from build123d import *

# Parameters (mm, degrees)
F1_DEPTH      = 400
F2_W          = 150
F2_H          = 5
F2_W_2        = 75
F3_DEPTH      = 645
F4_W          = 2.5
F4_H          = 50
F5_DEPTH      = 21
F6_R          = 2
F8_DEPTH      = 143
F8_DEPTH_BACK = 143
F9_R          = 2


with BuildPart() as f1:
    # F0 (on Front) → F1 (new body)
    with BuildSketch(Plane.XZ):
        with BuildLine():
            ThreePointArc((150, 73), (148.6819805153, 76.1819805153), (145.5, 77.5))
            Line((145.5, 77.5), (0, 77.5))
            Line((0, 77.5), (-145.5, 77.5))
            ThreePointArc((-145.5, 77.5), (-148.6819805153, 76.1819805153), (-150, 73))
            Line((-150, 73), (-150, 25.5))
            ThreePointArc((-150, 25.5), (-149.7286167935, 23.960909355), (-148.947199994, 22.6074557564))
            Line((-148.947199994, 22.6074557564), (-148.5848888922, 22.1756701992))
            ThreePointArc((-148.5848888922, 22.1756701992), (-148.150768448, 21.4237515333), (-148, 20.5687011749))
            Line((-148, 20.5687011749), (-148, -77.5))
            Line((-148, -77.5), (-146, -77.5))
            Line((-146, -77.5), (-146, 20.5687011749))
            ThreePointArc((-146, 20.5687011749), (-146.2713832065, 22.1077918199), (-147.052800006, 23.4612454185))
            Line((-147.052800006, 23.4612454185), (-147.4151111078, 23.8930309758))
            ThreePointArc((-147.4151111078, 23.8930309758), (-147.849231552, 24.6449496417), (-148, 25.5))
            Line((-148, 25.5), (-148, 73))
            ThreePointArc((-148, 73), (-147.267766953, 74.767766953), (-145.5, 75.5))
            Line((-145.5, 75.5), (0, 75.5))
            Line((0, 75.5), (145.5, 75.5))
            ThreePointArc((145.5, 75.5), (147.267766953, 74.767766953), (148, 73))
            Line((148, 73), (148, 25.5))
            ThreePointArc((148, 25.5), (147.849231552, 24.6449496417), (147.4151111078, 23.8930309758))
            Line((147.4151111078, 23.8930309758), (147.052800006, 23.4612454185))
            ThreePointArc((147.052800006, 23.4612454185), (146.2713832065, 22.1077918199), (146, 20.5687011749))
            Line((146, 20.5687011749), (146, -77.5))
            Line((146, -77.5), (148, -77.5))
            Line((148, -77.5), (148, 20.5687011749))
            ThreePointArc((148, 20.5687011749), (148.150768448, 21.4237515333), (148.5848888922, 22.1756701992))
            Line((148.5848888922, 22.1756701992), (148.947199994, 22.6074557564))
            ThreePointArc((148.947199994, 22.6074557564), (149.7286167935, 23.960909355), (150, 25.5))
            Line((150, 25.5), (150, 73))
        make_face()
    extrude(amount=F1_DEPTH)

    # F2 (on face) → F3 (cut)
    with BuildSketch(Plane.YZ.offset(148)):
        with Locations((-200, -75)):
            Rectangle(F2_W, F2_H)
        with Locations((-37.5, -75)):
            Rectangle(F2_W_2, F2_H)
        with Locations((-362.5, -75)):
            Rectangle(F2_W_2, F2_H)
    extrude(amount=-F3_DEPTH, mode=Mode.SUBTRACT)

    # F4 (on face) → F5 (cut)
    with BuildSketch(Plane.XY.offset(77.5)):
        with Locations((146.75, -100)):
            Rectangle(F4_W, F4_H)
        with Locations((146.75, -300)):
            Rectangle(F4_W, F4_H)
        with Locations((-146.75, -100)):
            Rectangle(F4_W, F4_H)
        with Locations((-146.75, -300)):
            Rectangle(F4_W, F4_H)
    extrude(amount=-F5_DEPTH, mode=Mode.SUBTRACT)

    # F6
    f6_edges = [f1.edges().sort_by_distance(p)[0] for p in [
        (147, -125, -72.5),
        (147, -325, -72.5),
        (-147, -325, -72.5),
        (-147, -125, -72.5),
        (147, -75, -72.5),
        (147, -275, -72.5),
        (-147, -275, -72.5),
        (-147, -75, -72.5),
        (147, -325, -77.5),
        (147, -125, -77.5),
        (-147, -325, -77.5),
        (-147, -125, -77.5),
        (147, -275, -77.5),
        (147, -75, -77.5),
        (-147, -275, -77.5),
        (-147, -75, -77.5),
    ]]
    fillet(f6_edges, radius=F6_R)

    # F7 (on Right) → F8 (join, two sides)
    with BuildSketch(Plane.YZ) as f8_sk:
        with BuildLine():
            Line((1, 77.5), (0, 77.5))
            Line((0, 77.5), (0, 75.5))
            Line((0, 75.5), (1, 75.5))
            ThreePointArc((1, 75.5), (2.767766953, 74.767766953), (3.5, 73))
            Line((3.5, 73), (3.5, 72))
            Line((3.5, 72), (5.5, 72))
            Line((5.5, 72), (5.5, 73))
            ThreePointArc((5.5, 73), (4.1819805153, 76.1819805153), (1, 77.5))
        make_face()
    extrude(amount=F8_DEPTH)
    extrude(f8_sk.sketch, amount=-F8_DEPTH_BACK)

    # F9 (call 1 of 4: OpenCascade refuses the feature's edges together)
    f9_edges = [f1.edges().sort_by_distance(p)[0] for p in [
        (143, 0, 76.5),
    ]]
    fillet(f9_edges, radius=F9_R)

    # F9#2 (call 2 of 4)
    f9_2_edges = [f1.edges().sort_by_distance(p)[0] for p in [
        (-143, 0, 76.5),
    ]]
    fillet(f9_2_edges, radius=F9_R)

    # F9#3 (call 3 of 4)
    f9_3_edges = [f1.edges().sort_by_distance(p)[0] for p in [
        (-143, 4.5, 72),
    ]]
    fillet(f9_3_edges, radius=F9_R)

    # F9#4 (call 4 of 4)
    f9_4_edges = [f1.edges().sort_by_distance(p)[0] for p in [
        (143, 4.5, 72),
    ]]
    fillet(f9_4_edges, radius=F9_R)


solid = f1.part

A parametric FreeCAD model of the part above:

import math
import FreeCAD as App
import Part
import Sketcher
from FreeCAD import Vector
Q = App.Units.Quantity


def edges_at(feature, points):
    """Names of the edges that pass closest to the given points."""
    edges = feature.Shape.Edges
    near = lambda p: min(range(len(edges)), key=lambda i: edges[i].distToShape(Part.Vertex(*p))[0])
    return sorted({f"Edge{near(p) + 1}" for p in points})

doc = App.newDocument("Part")
body = doc.addObject("PartDesign::Body", "Body")

# Sketch on XZ plane
sketch1 = body.newObject("Sketcher::SketchObject", "Sketch")
sketch1.AttachmentSupport = (doc.getObject("XZ_Plane"), [""])
sketch1.MapMode = "FlatFace"
sketch1.addGeometry(Part.ArcOfCircle(Part.Circle(Vector(145.5, 73, 0), Vector(0, 0, 1), 4.5), math.radians(0), math.radians(90)), False)
sketch1.addGeometry(Part.LineSegment(Vector(145.5, 77.5, 0), Vector(-145.5, 77.5, 0)), False)
sketch1.addGeometry(Part.ArcOfCircle(Part.Circle(Vector(-145.5, 73, 0), Vector(0, 0, 1), 4.5), math.radians(90), math.radians(180)), False)
sketch1.addGeometry(Part.LineSegment(Vector(-150, 73, 0), Vector(-150, 25.5, 0)), False)
sketch1.addGeometry(Part.ArcOfCircle(Part.Circle(Vector(-145.5, 25.5, 0), Vector(0, 0, 1), 4.5), math.radians(180), math.radians(220)), False)
sketch1.addGeometry(Part.LineSegment(Vector(-148.9, 22.6, 0), Vector(-148.6, 22.2, 0)), False)
sketch1.addGeometry(Part.ArcOfCircle(Part.Circle(Vector(-150.5, 20.6, 0), Vector(0, 0, 1), 2.5), math.radians(0), math.radians(40)), False)
sketch1.addGeometry(Part.LineSegment(Vector(-148, 20.6, 0), Vector(-148, -77.5, 0)), False)
sketch1.addGeometry(Part.LineSegment(Vector(-148, -77.5, 0), Vector(-146, -77.5, 0)), False)
sketch1.addGeometry(Part.LineSegment(Vector(-146, -77.5, 0), Vector(-146, 20.6, 0)), False)
sketch1.addGeometry(Part.ArcOfCircle(Part.Circle(Vector(-150.5, 20.6, 0), Vector(0, 0, 1), 4.5), math.radians(0), math.radians(40)), False)
sketch1.addGeometry(Part.LineSegment(Vector(-147.1, 23.5, 0), Vector(-147.4, 23.9, 0)), False)
sketch1.addGeometry(Part.ArcOfCircle(Part.Circle(Vector(-145.5, 25.5, 0), Vector(0, 0, 1), 2.5), math.radians(180), math.radians(220)), False)
sketch1.addGeometry(Part.LineSegment(Vector(-148, 25.5, 0), Vector(-148, 73, 0)), False)
sketch1.addGeometry(Part.ArcOfCircle(Part.Circle(Vector(-145.5, 73, 0), Vector(0, 0, 1), 2.5), math.radians(90), math.radians(180)), False)
sketch1.addGeometry(Part.LineSegment(Vector(-145.5, 75.5, 0), Vector(145.5, 75.5, 0)), False)
sketch1.addGeometry(Part.ArcOfCircle(Part.Circle(Vector(145.5, 73, 0), Vector(0, 0, 1), 2.5), math.radians(0), math.radians(90)), False)
sketch1.addGeometry(Part.LineSegment(Vector(148, 73, 0), Vector(148, 25.5, 0)), False)
sketch1.addGeometry(Part.ArcOfCircle(Part.Circle(Vector(145.5, 25.5, 0), Vector(0, 0, 1), 2.5), math.radians(-40), math.radians(0)), False)
sketch1.addGeometry(Part.LineSegment(Vector(147.4, 23.9, 0), Vector(147.1, 23.5, 0)), False)
sketch1.addGeometry(Part.ArcOfCircle(Part.Circle(Vector(150.5, 20.6, 0), Vector(0, 0, 1), 4.5), math.radians(140), math.radians(180)), False)
sketch1.addGeometry(Part.LineSegment(Vector(146, 20.6, 0), Vector(146, -77.5, 0)), False)
sketch1.addGeometry(Part.LineSegment(Vector(146, -77.5, 0), Vector(148, -77.5, 0)), False)
sketch1.addGeometry(Part.LineSegment(Vector(148, -77.5, 0), Vector(148, 20.6, 0)), False)
sketch1.addGeometry(Part.ArcOfCircle(Part.Circle(Vector(150.5, 20.6, 0), Vector(0, 0, 1), 2.5), math.radians(140), math.radians(180)), False)
sketch1.addGeometry(Part.LineSegment(Vector(148.6, 22.2, 0), Vector(148.9, 22.6, 0)), False)
sketch1.addGeometry(Part.ArcOfCircle(Part.Circle(Vector(145.5, 25.5, 0), Vector(0, 0, 1), 4.5), math.radians(-40), math.radians(0)), False)
sketch1.addGeometry(Part.LineSegment(Vector(150, 25.5, 0), Vector(150, 73, 0)), False)
sketch1.addConstraint(Sketcher.Constraint("Tangent", 0, 2, 1, 1))
sketch1.addConstraint(Sketcher.Constraint("Tangent", 1, 2, 2, 1))
sketch1.addConstraint(Sketcher.Constraint("Tangent", 2, 2, 3, 1))
sketch1.addConstraint(Sketcher.Constraint("Tangent", 3, 2, 4, 1))
sketch1.addConstraint(Sketcher.Constraint("Tangent", 4, 2, 5, 1))
sketch1.addConstraint(Sketcher.Constraint("Tangent", 5, 2, 6, 2))
sketch1.addConstraint(Sketcher.Constraint("Tangent", 6, 1, 7, 1))
sketch1.addConstraint(Sketcher.Constraint("Coincident", 7, 2, 8, 1))
sketch1.addConstraint(Sketcher.Constraint("Coincident", 8, 2, 9, 1))
sketch1.addConstraint(Sketcher.Constraint("Tangent", 9, 2, 10, 1))
sketch1.addConstraint(Sketcher.Constraint("Tangent", 10, 2, 11, 1))
sketch1.addConstraint(Sketcher.Constraint("Tangent", 11, 2, 12, 2))
sketch1.addConstraint(Sketcher.Constraint("Tangent", 12, 1, 13, 1))
sketch1.addConstraint(Sketcher.Constraint("Tangent", 13, 2, 14, 2))
sketch1.addConstraint(Sketcher.Constraint("Tangent", 14, 1, 15, 1))
sketch1.addConstraint(Sketcher.Constraint("Tangent", 15, 2, 16, 2))
sketch1.addConstraint(Sketcher.Constraint("Tangent", 16, 1, 17, 1))
sketch1.addConstraint(Sketcher.Constraint("Tangent", 17, 2, 18, 2))
sketch1.addConstraint(Sketcher.Constraint("Tangent", 18, 1, 19, 1))
sketch1.addConstraint(Sketcher.Constraint("Tangent", 19, 2, 20, 1))
sketch1.addConstraint(Sketcher.Constraint("Tangent", 20, 2, 21, 1))
sketch1.addConstraint(Sketcher.Constraint("Coincident", 21, 2, 22, 1))
sketch1.addConstraint(Sketcher.Constraint("Coincident", 22, 2, 23, 1))
sketch1.addConstraint(Sketcher.Constraint("Tangent", 23, 2, 24, 2))
sketch1.addConstraint(Sketcher.Constraint("Tangent", 24, 1, 25, 1))
sketch1.addConstraint(Sketcher.Constraint("Tangent", 25, 2, 26, 1))
sketch1.addConstraint(Sketcher.Constraint("Tangent", 26, 2, 27, 1))
sketch1.addConstraint(Sketcher.Constraint("Tangent", 27, 2, 0, 1))
sketch1.addConstraint(Sketcher.Constraint("Horizontal", 1))
sketch1.addConstraint(Sketcher.Constraint("Vertical", 3))
sketch1.addConstraint(Sketcher.Constraint("Vertical", 7))
sketch1.addConstraint(Sketcher.Constraint("Horizontal", 8))
sketch1.addConstraint(Sketcher.Constraint("Vertical", 9))
sketch1.addConstraint(Sketcher.Constraint("Vertical", 13))
sketch1.addConstraint(Sketcher.Constraint("Horizontal", 15))
sketch1.addConstraint(Sketcher.Constraint("Vertical", 17))
sketch1.addConstraint(Sketcher.Constraint("Vertical", 21))
sketch1.addConstraint(Sketcher.Constraint("Horizontal", 22))
sketch1.addConstraint(Sketcher.Constraint("Vertical", 23))
sketch1.addConstraint(Sketcher.Constraint("Vertical", 27))
sketch1.addConstraint(Sketcher.Constraint("Coincident", 10, 3, 6, 3))
sketch1.addConstraint(Sketcher.Constraint("Coincident", 12, 3, 4, 3))
sketch1.addConstraint(Sketcher.Constraint("Coincident", 14, 3, 2, 3))
sketch1.addConstraint(Sketcher.Constraint("Coincident", 16, 3, 0, 3))
sketch1.addConstraint(Sketcher.Constraint("Coincident", 24, 3, 20, 3))
sketch1.addConstraint(Sketcher.Constraint("Coincident", 26, 3, 18, 3))
sketch1.addConstraint(Sketcher.Constraint("Equal", 0, 2))
sketch1.addConstraint(Sketcher.Constraint("Equal", 2, 4))
sketch1.addConstraint(Sketcher.Constraint("Equal", 4, 10))
sketch1.addConstraint(Sketcher.Constraint("Equal", 6, 12))
sketch1.addConstraint(Sketcher.Constraint("Equal", 16, 18))
sketch1.addConstraint(Sketcher.Constraint("Equal", 10, 20))
sketch1.addConstraint(Sketcher.Constraint("Equal", 18, 24))
sketch1.addConstraint(Sketcher.Constraint("Symmetric", 4, 3, 18, 3, -2))
sketch1.addConstraint(Sketcher.Constraint("Symmetric", 6, 3, 20, 3, -2))
sketch1.addConstraint(Sketcher.Constraint("Horizontal", 8, 2, 21, 2))
sketch1.addConstraint(Sketcher.Constraint("Vertical", 7, 2, 12, 1))
sketch1.addConstraint(Sketcher.Constraint("Radius", 0, 4.5))
sketch1.addConstraint(Sketcher.Constraint("Radius", 6, 2.5))
sketch1.addConstraint(Sketcher.Constraint("DistanceX", 1, 2, 1, 1, 291.0))
sketch1.addConstraint(Sketcher.Constraint("Angle", 5, Q("-50 deg")))
sketch1.addConstraint(Sketcher.Constraint("DistanceY", 3, 2, 3, 1, 47.5))
sketch1.addConstraint(Sketcher.Constraint("DistanceY", -1, 1, 0, 3, 73.0))
sketch1.addConstraint(Sketcher.Constraint("DistanceY", 7, 2, -1, 1, 77.5))
pad1 = body.newObject("PartDesign::Pad", "Pad")
pad1.Profile = sketch1
pad1.Length = 400

# Sketch on YZ plane
sketch2 = body.newObject("Sketcher::SketchObject", "Sketch001")
sketch2.AttachmentSupport = (doc.getObject("YZ_Plane"), [""])
sketch2.MapMode = "FlatFace"
sketch2.AttachmentOffset = App.Placement(Vector(0, 0, 148), App.Rotation())
sketch2.addGeometry(Part.LineSegment(Vector(-275, -72, 0), Vector(-275, -78, 0)), False)
sketch2.addGeometry(Part.LineSegment(Vector(-275, -78, 0), Vector(-125, -78, 0)), False)
sketch2.addGeometry(Part.LineSegment(Vector(-125, -78, 0), Vector(-125, -72, 0)), False)
sketch2.addGeometry(Part.LineSegment(Vector(-125, -72, 0), Vector(-275, -72, 0)), False)
sketch2.addGeometry(Part.LineSegment(Vector(-75, -72, 0), Vector(-75, -78, 0)), False)
sketch2.addGeometry(Part.LineSegment(Vector(-75, -78, 0), Vector(0, -78, 0)), False)
sketch2.addGeometry(Part.LineSegment(Vector(0, -78, 0), Vector(0, -72, 0)), False)
sketch2.addGeometry(Part.LineSegment(Vector(0, -72, 0), Vector(-75, -72, 0)), False)
sketch2.addGeometry(Part.LineSegment(Vector(-400, -72, 0), Vector(-400, -78, 0)), False)
sketch2.addGeometry(Part.LineSegment(Vector(-400, -78, 0), Vector(-325, -78, 0)), False)
sketch2.addGeometry(Part.LineSegment(Vector(-325, -78, 0), Vector(-325, -72, 0)), False)
sketch2.addGeometry(Part.LineSegment(Vector(-325, -72, 0), Vector(-400, -72, 0)), False)
sketch2.addConstraint(Sketcher.Constraint("Coincident", 0, 2, 1, 1))
sketch2.addConstraint(Sketcher.Constraint("Coincident", 1, 2, 2, 1))
sketch2.addConstraint(Sketcher.Constraint("Coincident", 2, 2, 3, 1))
sketch2.addConstraint(Sketcher.Constraint("Coincident", 3, 2, 0, 1))
sketch2.addConstraint(Sketcher.Constraint("Coincident", 4, 2, 5, 1))
sketch2.addConstraint(Sketcher.Constraint("Coincident", 5, 2, 6, 1))
sketch2.addConstraint(Sketcher.Constraint("Coincident", 6, 2, 7, 1))
sketch2.addConstraint(Sketcher.Constraint("Coincident", 7, 2, 4, 1))
sketch2.addConstraint(Sketcher.Constraint("Coincident", 8, 2, 9, 1))
sketch2.addConstraint(Sketcher.Constraint("Coincident", 9, 2, 10, 1))
sketch2.addConstraint(Sketcher.Constraint("Coincident", 10, 2, 11, 1))
sketch2.addConstraint(Sketcher.Constraint("Coincident", 11, 2, 8, 1))
sketch2.addConstraint(Sketcher.Constraint("Vertical", 0))
sketch2.addConstraint(Sketcher.Constraint("Horizontal", 1))
sketch2.addConstraint(Sketcher.Constraint("Vertical", 2))
sketch2.addConstraint(Sketcher.Constraint("Horizontal", 3))
sketch2.addConstraint(Sketcher.Constraint("Vertical", 4))
sketch2.addConstraint(Sketcher.Constraint("Horizontal", 5))
sketch2.addConstraint(Sketcher.Constraint("Vertical", 6))
sketch2.addConstraint(Sketcher.Constraint("Horizontal", 7))
sketch2.addConstraint(Sketcher.Constraint("Vertical", 8))
sketch2.addConstraint(Sketcher.Constraint("Horizontal", 9))
sketch2.addConstraint(Sketcher.Constraint("Vertical", 10))
sketch2.addConstraint(Sketcher.Constraint("Horizontal", 11))
sketch2.addConstraint(Sketcher.Constraint("PointOnObject", 5, 2, -2))
sketch2.addConstraint(Sketcher.Constraint("Horizontal", 1, 2, 4, 2))
sketch2.addConstraint(Sketcher.Constraint("Horizontal", 3, 2, 6, 2))
sketch2.addConstraint(Sketcher.Constraint("Horizontal", 5, 2, 8, 2))
sketch2.addConstraint(Sketcher.Constraint("Horizontal", 7, 2, 10, 2))
sketch2.addConstraint(Sketcher.Constraint("Equal", 7, 9))
sketch2.addConstraint(Sketcher.Constraint("DistanceX", 1, 1, 1, 2, 150.0))
sketch2.addConstraint(Sketcher.Constraint("DistanceX", 5, 1, 5, 2, 75.0))
sketch2.addConstraint(Sketcher.Constraint("DistanceY", 0, 2, 0, 1, 5.0))
sketch2.addConstraint(Sketcher.Constraint("DistanceX", 0, 2, -1, 1, 275.0))
sketch2.addConstraint(Sketcher.Constraint("DistanceX", 8, 2, -1, 1, 400.0))
sketch2.addConstraint(Sketcher.Constraint("DistanceY", 0, 2, -1, 1, 77.5))
pocket1 = body.newObject("PartDesign::Pocket", "Pocket")
pocket1.Profile = sketch2
pocket1.Length = 645

# Sketch on XY plane
sketch3 = body.newObject("Sketcher::SketchObject", "Sketch002")
sketch3.AttachmentSupport = (doc.getObject("XY_Plane"), [""])
sketch3.MapMode = "FlatFace"
sketch3.AttachmentOffset = App.Placement(Vector(0, 0, 77.5), App.Rotation())
sketch3.addGeometry(Part.LineSegment(Vector(145.5, -75, 0), Vector(145.5, -125, 0)), False)
sketch3.addGeometry(Part.LineSegment(Vector(145.5, -125, 0), Vector(148, -125, 0)), False)
sketch3.addGeometry(Part.LineSegment(Vector(148, -125, 0), Vector(148, -75, 0)), False)
sketch3.addGeometry(Part.LineSegment(Vector(148, -75, 0), Vector(145.5, -75, 0)), False)
sketch3.addGeometry(Part.LineSegment(Vector(145.5, -275, 0), Vector(145.5, -325, 0)), False)
sketch3.addGeometry(Part.LineSegment(Vector(145.5, -325, 0), Vector(148, -325, 0)), False)
sketch3.addGeometry(Part.LineSegment(Vector(148, -325, 0), Vector(148, -275, 0)), False)
sketch3.addGeometry(Part.LineSegment(Vector(148, -275, 0), Vector(145.5, -275, 0)), False)
sketch3.addGeometry(Part.LineSegment(Vector(-148, -75, 0), Vector(-148, -125, 0)), False)
sketch3.addGeometry(Part.LineSegment(Vector(-148, -125, 0), Vector(-145.5, -125, 0)), False)
sketch3.addGeometry(Part.LineSegment(Vector(-145.5, -125, 0), Vector(-145.5, -75, 0)), False)
sketch3.addGeometry(Part.LineSegment(Vector(-145.5, -75, 0), Vector(-148, -75, 0)), False)
sketch3.addGeometry(Part.LineSegment(Vector(-148, -275, 0), Vector(-148, -325, 0)), False)
sketch3.addGeometry(Part.LineSegment(Vector(-148, -325, 0), Vector(-145.5, -325, 0)), False)
sketch3.addGeometry(Part.LineSegment(Vector(-145.5, -325, 0), Vector(-145.5, -275, 0)), False)
sketch3.addGeometry(Part.LineSegment(Vector(-145.5, -275, 0), Vector(-148, -275, 0)), False)
sketch3.addConstraint(Sketcher.Constraint("Coincident", 0, 2, 1, 1))
sketch3.addConstraint(Sketcher.Constraint("Coincident", 1, 2, 2, 1))
sketch3.addConstraint(Sketcher.Constraint("Coincident", 2, 2, 3, 1))
sketch3.addConstraint(Sketcher.Constraint("Coincident", 3, 2, 0, 1))
sketch3.addConstraint(Sketcher.Constraint("Coincident", 4, 2, 5, 1))
sketch3.addConstraint(Sketcher.Constraint("Coincident", 5, 2, 6, 1))
sketch3.addConstraint(Sketcher.Constraint("Coincident", 6, 2, 7, 1))
sketch3.addConstraint(Sketcher.Constraint("Coincident", 7, 2, 4, 1))
sketch3.addConstraint(Sketcher.Constraint("Coincident", 8, 2, 9, 1))
sketch3.addConstraint(Sketcher.Constraint("Coincident", 9, 2, 10, 1))
sketch3.addConstraint(Sketcher.Constraint("Coincident", 10, 2, 11, 1))
sketch3.addConstraint(Sketcher.Constraint("Coincident", 11, 2, 8, 1))
sketch3.addConstraint(Sketcher.Constraint("Coincident", 12, 2, 13, 1))
sketch3.addConstraint(Sketcher.Constraint("Coincident", 13, 2, 14, 1))
sketch3.addConstraint(Sketcher.Constraint("Coincident", 14, 2, 15, 1))
sketch3.addConstraint(Sketcher.Constraint("Coincident", 15, 2, 12, 1))
sketch3.addConstraint(Sketcher.Constraint("Vertical", 0))
sketch3.addConstraint(Sketcher.Constraint("Horizontal", 1))
sketch3.addConstraint(Sketcher.Constraint("Vertical", 2))
sketch3.addConstraint(Sketcher.Constraint("Horizontal", 3))
sketch3.addConstraint(Sketcher.Constraint("Vertical", 4))
sketch3.addConstraint(Sketcher.Constraint("Horizontal", 5))
sketch3.addConstraint(Sketcher.Constraint("Vertical", 6))
sketch3.addConstraint(Sketcher.Constraint("Horizontal", 7))
sketch3.addConstraint(Sketcher.Constraint("Vertical", 8))
sketch3.addConstraint(Sketcher.Constraint("Horizontal", 9))
sketch3.addConstraint(Sketcher.Constraint("Vertical", 10))
sketch3.addConstraint(Sketcher.Constraint("Horizontal", 11))
sketch3.addConstraint(Sketcher.Constraint("Vertical", 12))
sketch3.addConstraint(Sketcher.Constraint("Horizontal", 13))
sketch3.addConstraint(Sketcher.Constraint("Vertical", 14))
sketch3.addConstraint(Sketcher.Constraint("Horizontal", 15))
sketch3.addConstraint(Sketcher.Constraint("Symmetric", 1, 2, 8, 2, -2))
sketch3.addConstraint(Sketcher.Constraint("Symmetric", 3, 2, 10, 2, -2))
sketch3.addConstraint(Sketcher.Constraint("Symmetric", 5, 2, 12, 2, -2))
sketch3.addConstraint(Sketcher.Constraint("Symmetric", 7, 2, 14, 2, -2))
sketch3.addConstraint(Sketcher.Constraint("Vertical", 3, 2, 4, 2))
sketch3.addConstraint(Sketcher.Constraint("Vertical", 2, 2, 5, 2))
sketch3.addConstraint(Sketcher.Constraint("Equal", 2, 4))
sketch3.addConstraint(Sketcher.Constraint("DistanceY", 0, 2, 0, 1, 50.0))
sketch3.addConstraint(Sketcher.Constraint("DistanceX", 1, 1, 1, 2, 2.5))
sketch3.addConstraint(Sketcher.Constraint("DistanceY", 0, 2, -1, 1, 125.0))
sketch3.addConstraint(Sketcher.Constraint("DistanceX", -1, 1, 1, 2, 148.0))
sketch3.addConstraint(Sketcher.Constraint("DistanceY", 4, 2, -1, 1, 325.0))
pocket2 = body.newObject("PartDesign::Pocket", "Pocket001")
pocket2.Profile = sketch3
pocket2.Length = 21
doc.recompute()

fillet = body.newObject("PartDesign::Fillet", "Fillet")
fillet.Base = (pocket2, edges_at(pocket2, [
    (147, -125, -72.5),
    (147, -325, -72.5),
    (-147, -325, -72.5),
    (-147, -125, -72.5),
    (147, -75, -72.5),
    (147, -275, -72.5),
    (-147, -275, -72.5),
    (-147, -75, -72.5),
    (147, -325, -77.5),
    (147, -125, -77.5),
    (-147, -325, -77.5),
    (-147, -125, -77.5),
    (147, -275, -77.5),
    (147, -75, -77.5),
    (-147, -275, -77.5),
    (-147, -75, -77.5),
]))
fillet.Radius = 2

# Sketch on YZ plane
sketch4 = body.newObject("Sketcher::SketchObject", "Sketch003")
sketch4.AttachmentSupport = (doc.getObject("YZ_Plane"), [""])
sketch4.MapMode = "FlatFace"
sketch4.addGeometry(Part.LineSegment(Vector(1, 77.5, 0), Vector(0, 77.5, 0)), False)
sketch4.addGeometry(Part.LineSegment(Vector(0, 77.5, 0), Vector(0, 75.5, 0)), False)
sketch4.addGeometry(Part.LineSegment(Vector(0, 75.5, 0), Vector(1, 75.5, 0)), False)
sketch4.addGeometry(Part.ArcOfCircle(Part.Circle(Vector(1, 73, 0), Vector(0, 0, 1), 2.5), math.radians(0), math.radians(90)), False)
sketch4.addGeometry(Part.LineSegment(Vector(3.5, 73, 0), Vector(3.5, 72, 0)), False)
sketch4.addGeometry(Part.LineSegment(Vector(3.5, 72, 0), Vector(5.5, 72, 0)), False)
sketch4.addGeometry(Part.LineSegment(Vector(5.5, 72, 0), Vector(5.5, 73, 0)), False)
sketch4.addGeometry(Part.ArcOfCircle(Part.Circle(Vector(1, 73, 0), Vector(0, 0, 1), 4.5), math.radians(0), math.radians(90)), False)
sketch4.addConstraint(Sketcher.Constraint("Coincident", 0, 2, 1, 1))
sketch4.addConstraint(Sketcher.Constraint("Coincident", 1, 2, 2, 1))
sketch4.addConstraint(Sketcher.Constraint("Tangent", 2, 2, 3, 2))
sketch4.addConstraint(Sketcher.Constraint("Tangent", 3, 1, 4, 1))
sketch4.addConstraint(Sketcher.Constraint("Coincident", 4, 2, 5, 1))
sketch4.addConstraint(Sketcher.Constraint("Coincident", 5, 2, 6, 1))
sketch4.addConstraint(Sketcher.Constraint("Tangent", 6, 2, 7, 1))
sketch4.addConstraint(Sketcher.Constraint("Tangent", 7, 2, 0, 1))
sketch4.addConstraint(Sketcher.Constraint("Horizontal", 0))
sketch4.addConstraint(Sketcher.Constraint("Vertical", 1))
sketch4.addConstraint(Sketcher.Constraint("Horizontal", 2))
sketch4.addConstraint(Sketcher.Constraint("Vertical", 4))
sketch4.addConstraint(Sketcher.Constraint("Horizontal", 5))
sketch4.addConstraint(Sketcher.Constraint("Vertical", 6))
sketch4.addConstraint(Sketcher.Constraint("Coincident", 7, 3, 3, 3))
sketch4.addConstraint(Sketcher.Constraint("PointOnObject", 0, 2, -2))
sketch4.addConstraint(Sketcher.Constraint("Equal", 2, 4))
sketch4.addConstraint(Sketcher.Constraint("Radius", 3, 2.5))
sketch4.addConstraint(Sketcher.Constraint("Radius", 7, 4.5))
sketch4.addConstraint(Sketcher.Constraint("DistanceX", 0, 2, 0, 1, 1.0))
sketch4.addConstraint(Sketcher.Constraint("DistanceY", -1, 1, 3, 3, 73.0))
pad2 = body.newObject("PartDesign::Pad", "Pad001")
pad2.Profile = sketch4
pad2.Type = "TwoLengths"
pad2.Length = 143
pad2.Length2 = 143
doc.recompute()

fillet2 = body.newObject("PartDesign::Fillet", "Fillet001")
fillet2.Base = (pad2, edges_at(pad2, [(143, 0, 76.5)]))
fillet2.Radius = 2
doc.recompute()

fillet3 = body.newObject("PartDesign::Fillet", "Fillet002")
fillet3.Base = (fillet2, edges_at(fillet2, [(-143, 0, 76.5)]))
fillet3.Radius = 2
doc.recompute()

fillet4 = body.newObject("PartDesign::Fillet", "Fillet003")
fillet4.Base = (fillet3, edges_at(fillet3, [(-143, 4.5, 72)]))
fillet4.Radius = 2
doc.recompute()

fillet5 = body.newObject("PartDesign::Fillet", "Fillet004")
fillet5.Base = (fillet4, edges_at(fillet4, [(143, 4.5, 72)]))
fillet5.Radius = 2

doc.recompute()
